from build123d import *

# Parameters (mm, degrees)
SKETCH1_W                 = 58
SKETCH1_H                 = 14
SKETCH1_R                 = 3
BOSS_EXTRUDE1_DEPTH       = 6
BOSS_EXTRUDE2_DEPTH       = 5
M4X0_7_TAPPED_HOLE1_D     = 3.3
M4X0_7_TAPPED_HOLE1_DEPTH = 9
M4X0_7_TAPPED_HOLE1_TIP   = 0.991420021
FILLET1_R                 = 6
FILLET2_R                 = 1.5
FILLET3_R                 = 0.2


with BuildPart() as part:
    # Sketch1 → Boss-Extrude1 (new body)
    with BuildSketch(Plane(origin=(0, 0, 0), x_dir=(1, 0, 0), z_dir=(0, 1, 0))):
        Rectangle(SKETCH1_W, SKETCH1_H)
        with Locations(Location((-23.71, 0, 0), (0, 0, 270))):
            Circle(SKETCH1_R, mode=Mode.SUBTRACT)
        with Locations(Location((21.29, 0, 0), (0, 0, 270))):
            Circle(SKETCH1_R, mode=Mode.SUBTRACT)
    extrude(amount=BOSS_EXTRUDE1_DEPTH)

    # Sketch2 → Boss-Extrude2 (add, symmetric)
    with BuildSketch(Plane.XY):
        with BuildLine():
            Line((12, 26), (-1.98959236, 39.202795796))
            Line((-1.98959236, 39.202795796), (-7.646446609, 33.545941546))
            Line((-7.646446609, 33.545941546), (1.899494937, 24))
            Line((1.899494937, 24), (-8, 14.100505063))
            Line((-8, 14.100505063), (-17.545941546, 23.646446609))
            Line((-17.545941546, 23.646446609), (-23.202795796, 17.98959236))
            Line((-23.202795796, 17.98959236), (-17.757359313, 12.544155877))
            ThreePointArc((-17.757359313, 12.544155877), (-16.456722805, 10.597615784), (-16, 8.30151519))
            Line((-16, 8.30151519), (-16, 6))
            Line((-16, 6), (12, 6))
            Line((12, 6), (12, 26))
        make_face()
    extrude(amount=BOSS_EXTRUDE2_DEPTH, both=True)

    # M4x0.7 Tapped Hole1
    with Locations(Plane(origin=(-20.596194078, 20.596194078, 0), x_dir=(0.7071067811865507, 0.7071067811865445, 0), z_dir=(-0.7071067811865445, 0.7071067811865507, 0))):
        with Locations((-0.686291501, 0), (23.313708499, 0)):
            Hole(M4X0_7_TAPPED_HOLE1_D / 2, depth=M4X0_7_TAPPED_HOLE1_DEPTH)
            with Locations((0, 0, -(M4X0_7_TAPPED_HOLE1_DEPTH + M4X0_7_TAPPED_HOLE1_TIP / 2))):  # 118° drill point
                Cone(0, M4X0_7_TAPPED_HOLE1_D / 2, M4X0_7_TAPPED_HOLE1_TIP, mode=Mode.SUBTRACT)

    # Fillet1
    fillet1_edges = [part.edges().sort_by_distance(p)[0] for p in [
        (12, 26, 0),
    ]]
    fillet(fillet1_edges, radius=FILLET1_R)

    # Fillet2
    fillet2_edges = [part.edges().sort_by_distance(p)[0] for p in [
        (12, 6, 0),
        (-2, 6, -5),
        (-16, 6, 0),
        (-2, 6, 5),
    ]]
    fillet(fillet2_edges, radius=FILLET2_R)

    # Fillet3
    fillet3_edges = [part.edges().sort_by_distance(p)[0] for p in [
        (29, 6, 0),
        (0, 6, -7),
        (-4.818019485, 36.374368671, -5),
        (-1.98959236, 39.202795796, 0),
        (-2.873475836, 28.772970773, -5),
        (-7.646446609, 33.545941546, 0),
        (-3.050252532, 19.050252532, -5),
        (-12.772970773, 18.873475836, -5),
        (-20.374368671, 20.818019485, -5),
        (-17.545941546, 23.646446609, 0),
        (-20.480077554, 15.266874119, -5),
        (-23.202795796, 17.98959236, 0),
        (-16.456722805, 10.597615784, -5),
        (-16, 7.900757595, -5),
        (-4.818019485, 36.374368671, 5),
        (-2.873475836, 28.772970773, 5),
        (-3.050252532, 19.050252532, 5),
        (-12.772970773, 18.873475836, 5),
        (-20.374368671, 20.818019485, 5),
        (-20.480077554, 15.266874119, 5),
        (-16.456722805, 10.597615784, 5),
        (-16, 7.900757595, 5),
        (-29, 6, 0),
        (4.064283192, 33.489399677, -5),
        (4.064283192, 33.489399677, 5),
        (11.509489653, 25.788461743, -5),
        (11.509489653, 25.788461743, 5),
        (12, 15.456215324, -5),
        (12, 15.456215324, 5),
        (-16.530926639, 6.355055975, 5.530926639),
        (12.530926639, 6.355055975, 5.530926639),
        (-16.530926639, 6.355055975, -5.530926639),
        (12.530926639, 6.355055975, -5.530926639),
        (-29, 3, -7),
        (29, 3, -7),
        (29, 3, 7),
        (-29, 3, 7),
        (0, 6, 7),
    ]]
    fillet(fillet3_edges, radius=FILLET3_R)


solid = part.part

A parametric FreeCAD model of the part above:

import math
import FreeCAD as App
import Part
import Sketcher
from FreeCAD import Vector
Q = App.Units.Quantity


def edges_at(feature, points):
    """Names of the edges that pass closest to the given points."""
    edges = feature.Shape.Edges
    near = lambda p: min(range(len(edges)), key=lambda i: edges[i].distToShape(Part.Vertex(*p))[0])
    return sorted({f"Edge{near(p) + 1}" for p in points})

doc = App.newDocument("Part")
body = doc.addObject("PartDesign::Body", "Body")

# Sketch on XZ plane
sketch1 = body.newObject("Sketcher::SketchObject", "Sketch")
sketch1.AttachmentSupport = (doc.getObject("XZ_Plane"), [""])
sketch1.MapMode = "FlatFace"
sketch1.addGeometry([
    Part.LineSegment(Vector(-29, -7, 0), Vector(-29, 7, 0)),  # 0
    Part.LineSegment(Vector(-29, 7, 0), Vector(29, 7, 0)),  # 1
    Part.LineSegment(Vector(29, 7, 0), Vector(29, -7, 0)),  # 2
    Part.LineSegment(Vector(29, -7, 0), Vector(-29, -7, 0)),  # 3
    Part.Circle(Vector(-23.7, 0, 0), Vector(0, 0, 1), 3),  # 4
    Part.Circle(Vector(21.3, 0, 0), Vector(0, 0, 1), 3),  # 5
], False)
sketch1.addConstraint([
    Sketcher.Constraint("Coincident", 0, 2, 1, 1),
    Sketcher.Constraint("Coincident", 1, 2, 2, 1),
    Sketcher.Constraint("Coincident", 2, 2, 3, 1),
    Sketcher.Constraint("Coincident", 3, 2, 0, 1),
    Sketcher.Constraint("Vertical", 0),
    Sketcher.Constraint("Horizontal", 1),
    Sketcher.Constraint("Vertical", 2),
    Sketcher.Constraint("Horizontal", 3),
    Sketcher.Constraint("Equal", 4, 5),
    Sketcher.Constraint("Symmetric", 0, 2, 2, 2, -1, 1),
    Sketcher.Constraint("PointOnObject", 4, 3, -1),
    Sketcher.Constraint("PointOnObject", 5, 3, -1),
    Sketcher.Constraint("Diameter", 4, 6.0),
    Sketcher.Constraint("DistanceX", 1, 1, 1, 2, 58.0),
    Sketcher.Constraint("DistanceY", 0, 1, 0, 2, 14.0),
    Sketcher.Constraint("DistanceX", 4, 3, 5, 3, 45.0),
    Sketcher.Constraint("DistanceX", 4, 3, -1, 1, 23.71),
])
pad1 = body.newObject("PartDesign::Pad", "Pad")
pad1.Profile = sketch1
pad1.Length = 6
pad1.Reversed = True

# Sketch on XY plane
sketch2 = body.newObject("Sketcher::SketchObject", "Sketch001")
sketch2.AttachmentSupport = (doc.getObject("XY_Plane"), [""])
sketch2.MapMode = "FlatFace"
sketch2.addGeometry([
    Part.LineSegment(Vector(12, 26, 0), Vector(-2, 39.2, 0)),  # 0
    Part.LineSegment(Vector(-2, 39.2, 0), Vector(-7.6, 33.5, 0)),  # 1
    Part.LineSegment(Vector(-7.6, 33.5, 0), Vector(1.9, 24, 0)),  # 2
    Part.LineSegment(Vector(1.9, 24, 0), Vector(-8, 14.1, 0)),  # 3
    Part.LineSegment(Vector(-8, 14.1, 0), Vector(-17.5, 23.6, 0)),  # 4
    Part.LineSegment(Vector(-17.5, 23.6, 0), Vector(-23.2, 18, 0)),  # 5
    Part.LineSegment(Vector(-23.2, 18, 0), Vector(-17.8, 12.5, 0)),  # 6
    Part.ArcOfCircle(Part.Circle(Vector(-22, 8.3, 0), Vector(0, 0, 1), 6), math.radians(0), math.radians(45)),  # 7
    Part.LineSegment(Vector(-16, 8.3, 0), Vector(-16, 6, 0)),  # 8
    Part.LineSegment(Vector(-16, 6, 0), Vector(12, 6, 0)),  # 9
    Part.LineSegment(Vector(12, 6, 0), Vector(12, 26, 0)),  # 10
], False)
sketch2.addConstraint([
    Sketcher.Constraint("Coincident", 0, 2, 1, 1),
    Sketcher.Constraint("Coincident", 1, 2, 2, 1),
    Sketcher.Constraint("Coincident", 2, 2, 3, 1),
    Sketcher.Constraint("Coincident", 3, 2, 4, 1),
    Sketcher.Constraint("Coincident", 4, 2, 5, 1),
    Sketcher.Constraint("Coincident", 5, 2, 6, 1),
    Sketcher.Constraint("Tangent", 6, 2, 7, 2),
    Sketcher.Constraint("Tangent", 7, 1, 8, 1),
    Sketcher.Constraint("Coincident", 8, 2, 9, 1),
    Sketcher.Constraint("Coincident", 9, 2, 10, 1),
    Sketcher.Constraint("Coincident", 10, 2, 0, 1),
    Sketcher.Constraint("Vertical", 8),
    Sketcher.Constraint("Horizontal", 9),
    Sketcher.Constraint("Vertical", 10),
    Sketcher.Constraint("Perpendicular", 1, 2),
    Sketcher.Constraint("Perpendicular", 2, 3),
    Sketcher.Constraint("Perpendicular", 3, 4),
    Sketcher.Constraint("Perpendicular", 4, 5),
    Sketcher.Constraint("Perpendicular", 5, 6),
    Sketcher.Constraint("Equal", 2, 4),
    Sketcher.Constraint("Equal", 1, 5),
    Sketcher.Constraint("Radius", 7, 6.0),
    Sketcher.Constraint("DistanceX", 9, 1, 9, 2, 28.0),
    Sketcher.Constraint("DistanceY", 10, 1, 10, 2, 20.0),
    Sketcher.Constraint("Angle", 1, Q("-135 deg")),
    Sketcher.Constraint("Distance", 1, 8.0),
    Sketcher.Constraint("Distance", 3, 14.0),
    Sketcher.Constraint("DistanceX", 7, 3, -1, 1, 22.0),
    Sketcher.Constraint("DistanceY", -1, 1, 2, 2, 24.0),
    Sketcher.Constraint("DistanceX", 3, 2, -1, 1, 8.0),
    Sketcher.Constraint("DistanceY", -1, 1, 8, 2, 6.0),
    Sketcher.Constraint("Distance", 2, 13.5),
])
pad2 = body.newObject("PartDesign::Pad", "Pad001")
pad2.Profile = sketch2
pad2.Length = 10
pad2.Midplane = True

# Sketch on an angled plane
sketch3 = body.newObject("Sketcher::SketchObject", "Sketch002")
sketch3.Placement = App.Placement(Vector(-20.596194, 20.596194, 0), App.Rotation(Vector(0.707106781, 0.707106781, 0), Vector(0, 0, -0.999999999), Vector(-0.707106781, 0.707106781, 0), "ZXY"))
sketch3.addGeometry([
    Part.Circle(Vector(-0.7, 0, 0), Vector(0, 0, 1), 1.6),
    Part.Circle(Vector(23.3, 0, 0), Vector(0, 0, 1), 1.6),
], False)
sketch3.addConstraint([
    Sketcher.Constraint("Equal", 0, 1),
    Sketcher.Constraint("PointOnObject", 0, 3, -1),
    Sketcher.Constraint("PointOnObject", 1, 3, -1),
    Sketcher.Constraint("Diameter", 0, 3.3),
    Sketcher.Constraint("DistanceX", 0, 3, 1, 3, 24.0),
    Sketcher.Constraint("DistanceX", 0, 3, -1, 1, 0.686292),
])
doc.recompute()
hole = body.newObject("PartDesign::Hole", "Hole")
hole.Profile = sketch3
hole.ThreadType = "None"
hole.Diameter = 3.3
hole.DepthType = "Dimension"
hole.Depth = 9
hole.DrillPoint = "Angled"
hole.DrillPointAngle = 118
doc.recompute()

fillet = body.newObject("PartDesign::Fillet", "Fillet")
fillet.Base = (hole, edges_at(hole, [(12, 26, 0)]))
fillet.Radius = 6
doc.recompute()

fillet2 = body.newObject("PartDesign::Fillet", "Fillet001")
fillet2.Base = (fillet, edges_at(fillet, [
    (12, 6, 0),
    (-2, 6, -5),
    (-16, 6, 0),
    (-2, 6, 5),
]))
fillet2.Radius = 1.5
doc.recompute()

fillet3 = body.newObject("PartDesign::Fillet", "Fillet002")
fillet3.Base = (fillet2, edges_at(fillet2, [
    (29, 6, 0),
    (0, 6, -7),
    (-4.818, 36.374, -5),
    (-1.99, 39.203, 0),
    (-2.873, 28.773, -5),
    (-7.646, 33.546, 0),
    (-3.05, 19.05, -5),
    (-12.773, 18.873, -5),
    (-20.374, 20.818, -5),
    (-17.546, 23.646, 0),
    (-20.48, 15.267, -5),
    (-23.203, 17.99, 0),
    (-16.457, 10.598, -5),
    (-16, 7.901, -5),
    (-4.818, 36.374, 5),
    (-2.873, 28.773, 5),
    (-3.05, 19.05, 5),
    (-12.773, 18.873, 5),
    (-20.374, 20.818, 5),
    (-20.48, 15.267, 5),
    (-16.457, 10.598, 5),
    (-16, 7.901, 5),
    (-29, 6, 0),
    (4.064, 33.489, -5),
    (4.064, 33.489, 5),
    (11.509, 25.788, -5),
    (11.509, 25.788, 5),
    (12, 15.456, -5),
    (12, 15.456, 5),
    (-16.531, 6.355, 5.531),
    (12.531, 6.355, 5.531),
    (-16.531, 6.355, -5.531),
    (12.531, 6.355, -5.531),
    (-29, 3, -7),
    (29, 3, -7),
    (29, 3, 7),
    (-29, 3, 7),
    (0, 6, 7),
]))
fillet3.Radius = 0.2

doc.recompute()
